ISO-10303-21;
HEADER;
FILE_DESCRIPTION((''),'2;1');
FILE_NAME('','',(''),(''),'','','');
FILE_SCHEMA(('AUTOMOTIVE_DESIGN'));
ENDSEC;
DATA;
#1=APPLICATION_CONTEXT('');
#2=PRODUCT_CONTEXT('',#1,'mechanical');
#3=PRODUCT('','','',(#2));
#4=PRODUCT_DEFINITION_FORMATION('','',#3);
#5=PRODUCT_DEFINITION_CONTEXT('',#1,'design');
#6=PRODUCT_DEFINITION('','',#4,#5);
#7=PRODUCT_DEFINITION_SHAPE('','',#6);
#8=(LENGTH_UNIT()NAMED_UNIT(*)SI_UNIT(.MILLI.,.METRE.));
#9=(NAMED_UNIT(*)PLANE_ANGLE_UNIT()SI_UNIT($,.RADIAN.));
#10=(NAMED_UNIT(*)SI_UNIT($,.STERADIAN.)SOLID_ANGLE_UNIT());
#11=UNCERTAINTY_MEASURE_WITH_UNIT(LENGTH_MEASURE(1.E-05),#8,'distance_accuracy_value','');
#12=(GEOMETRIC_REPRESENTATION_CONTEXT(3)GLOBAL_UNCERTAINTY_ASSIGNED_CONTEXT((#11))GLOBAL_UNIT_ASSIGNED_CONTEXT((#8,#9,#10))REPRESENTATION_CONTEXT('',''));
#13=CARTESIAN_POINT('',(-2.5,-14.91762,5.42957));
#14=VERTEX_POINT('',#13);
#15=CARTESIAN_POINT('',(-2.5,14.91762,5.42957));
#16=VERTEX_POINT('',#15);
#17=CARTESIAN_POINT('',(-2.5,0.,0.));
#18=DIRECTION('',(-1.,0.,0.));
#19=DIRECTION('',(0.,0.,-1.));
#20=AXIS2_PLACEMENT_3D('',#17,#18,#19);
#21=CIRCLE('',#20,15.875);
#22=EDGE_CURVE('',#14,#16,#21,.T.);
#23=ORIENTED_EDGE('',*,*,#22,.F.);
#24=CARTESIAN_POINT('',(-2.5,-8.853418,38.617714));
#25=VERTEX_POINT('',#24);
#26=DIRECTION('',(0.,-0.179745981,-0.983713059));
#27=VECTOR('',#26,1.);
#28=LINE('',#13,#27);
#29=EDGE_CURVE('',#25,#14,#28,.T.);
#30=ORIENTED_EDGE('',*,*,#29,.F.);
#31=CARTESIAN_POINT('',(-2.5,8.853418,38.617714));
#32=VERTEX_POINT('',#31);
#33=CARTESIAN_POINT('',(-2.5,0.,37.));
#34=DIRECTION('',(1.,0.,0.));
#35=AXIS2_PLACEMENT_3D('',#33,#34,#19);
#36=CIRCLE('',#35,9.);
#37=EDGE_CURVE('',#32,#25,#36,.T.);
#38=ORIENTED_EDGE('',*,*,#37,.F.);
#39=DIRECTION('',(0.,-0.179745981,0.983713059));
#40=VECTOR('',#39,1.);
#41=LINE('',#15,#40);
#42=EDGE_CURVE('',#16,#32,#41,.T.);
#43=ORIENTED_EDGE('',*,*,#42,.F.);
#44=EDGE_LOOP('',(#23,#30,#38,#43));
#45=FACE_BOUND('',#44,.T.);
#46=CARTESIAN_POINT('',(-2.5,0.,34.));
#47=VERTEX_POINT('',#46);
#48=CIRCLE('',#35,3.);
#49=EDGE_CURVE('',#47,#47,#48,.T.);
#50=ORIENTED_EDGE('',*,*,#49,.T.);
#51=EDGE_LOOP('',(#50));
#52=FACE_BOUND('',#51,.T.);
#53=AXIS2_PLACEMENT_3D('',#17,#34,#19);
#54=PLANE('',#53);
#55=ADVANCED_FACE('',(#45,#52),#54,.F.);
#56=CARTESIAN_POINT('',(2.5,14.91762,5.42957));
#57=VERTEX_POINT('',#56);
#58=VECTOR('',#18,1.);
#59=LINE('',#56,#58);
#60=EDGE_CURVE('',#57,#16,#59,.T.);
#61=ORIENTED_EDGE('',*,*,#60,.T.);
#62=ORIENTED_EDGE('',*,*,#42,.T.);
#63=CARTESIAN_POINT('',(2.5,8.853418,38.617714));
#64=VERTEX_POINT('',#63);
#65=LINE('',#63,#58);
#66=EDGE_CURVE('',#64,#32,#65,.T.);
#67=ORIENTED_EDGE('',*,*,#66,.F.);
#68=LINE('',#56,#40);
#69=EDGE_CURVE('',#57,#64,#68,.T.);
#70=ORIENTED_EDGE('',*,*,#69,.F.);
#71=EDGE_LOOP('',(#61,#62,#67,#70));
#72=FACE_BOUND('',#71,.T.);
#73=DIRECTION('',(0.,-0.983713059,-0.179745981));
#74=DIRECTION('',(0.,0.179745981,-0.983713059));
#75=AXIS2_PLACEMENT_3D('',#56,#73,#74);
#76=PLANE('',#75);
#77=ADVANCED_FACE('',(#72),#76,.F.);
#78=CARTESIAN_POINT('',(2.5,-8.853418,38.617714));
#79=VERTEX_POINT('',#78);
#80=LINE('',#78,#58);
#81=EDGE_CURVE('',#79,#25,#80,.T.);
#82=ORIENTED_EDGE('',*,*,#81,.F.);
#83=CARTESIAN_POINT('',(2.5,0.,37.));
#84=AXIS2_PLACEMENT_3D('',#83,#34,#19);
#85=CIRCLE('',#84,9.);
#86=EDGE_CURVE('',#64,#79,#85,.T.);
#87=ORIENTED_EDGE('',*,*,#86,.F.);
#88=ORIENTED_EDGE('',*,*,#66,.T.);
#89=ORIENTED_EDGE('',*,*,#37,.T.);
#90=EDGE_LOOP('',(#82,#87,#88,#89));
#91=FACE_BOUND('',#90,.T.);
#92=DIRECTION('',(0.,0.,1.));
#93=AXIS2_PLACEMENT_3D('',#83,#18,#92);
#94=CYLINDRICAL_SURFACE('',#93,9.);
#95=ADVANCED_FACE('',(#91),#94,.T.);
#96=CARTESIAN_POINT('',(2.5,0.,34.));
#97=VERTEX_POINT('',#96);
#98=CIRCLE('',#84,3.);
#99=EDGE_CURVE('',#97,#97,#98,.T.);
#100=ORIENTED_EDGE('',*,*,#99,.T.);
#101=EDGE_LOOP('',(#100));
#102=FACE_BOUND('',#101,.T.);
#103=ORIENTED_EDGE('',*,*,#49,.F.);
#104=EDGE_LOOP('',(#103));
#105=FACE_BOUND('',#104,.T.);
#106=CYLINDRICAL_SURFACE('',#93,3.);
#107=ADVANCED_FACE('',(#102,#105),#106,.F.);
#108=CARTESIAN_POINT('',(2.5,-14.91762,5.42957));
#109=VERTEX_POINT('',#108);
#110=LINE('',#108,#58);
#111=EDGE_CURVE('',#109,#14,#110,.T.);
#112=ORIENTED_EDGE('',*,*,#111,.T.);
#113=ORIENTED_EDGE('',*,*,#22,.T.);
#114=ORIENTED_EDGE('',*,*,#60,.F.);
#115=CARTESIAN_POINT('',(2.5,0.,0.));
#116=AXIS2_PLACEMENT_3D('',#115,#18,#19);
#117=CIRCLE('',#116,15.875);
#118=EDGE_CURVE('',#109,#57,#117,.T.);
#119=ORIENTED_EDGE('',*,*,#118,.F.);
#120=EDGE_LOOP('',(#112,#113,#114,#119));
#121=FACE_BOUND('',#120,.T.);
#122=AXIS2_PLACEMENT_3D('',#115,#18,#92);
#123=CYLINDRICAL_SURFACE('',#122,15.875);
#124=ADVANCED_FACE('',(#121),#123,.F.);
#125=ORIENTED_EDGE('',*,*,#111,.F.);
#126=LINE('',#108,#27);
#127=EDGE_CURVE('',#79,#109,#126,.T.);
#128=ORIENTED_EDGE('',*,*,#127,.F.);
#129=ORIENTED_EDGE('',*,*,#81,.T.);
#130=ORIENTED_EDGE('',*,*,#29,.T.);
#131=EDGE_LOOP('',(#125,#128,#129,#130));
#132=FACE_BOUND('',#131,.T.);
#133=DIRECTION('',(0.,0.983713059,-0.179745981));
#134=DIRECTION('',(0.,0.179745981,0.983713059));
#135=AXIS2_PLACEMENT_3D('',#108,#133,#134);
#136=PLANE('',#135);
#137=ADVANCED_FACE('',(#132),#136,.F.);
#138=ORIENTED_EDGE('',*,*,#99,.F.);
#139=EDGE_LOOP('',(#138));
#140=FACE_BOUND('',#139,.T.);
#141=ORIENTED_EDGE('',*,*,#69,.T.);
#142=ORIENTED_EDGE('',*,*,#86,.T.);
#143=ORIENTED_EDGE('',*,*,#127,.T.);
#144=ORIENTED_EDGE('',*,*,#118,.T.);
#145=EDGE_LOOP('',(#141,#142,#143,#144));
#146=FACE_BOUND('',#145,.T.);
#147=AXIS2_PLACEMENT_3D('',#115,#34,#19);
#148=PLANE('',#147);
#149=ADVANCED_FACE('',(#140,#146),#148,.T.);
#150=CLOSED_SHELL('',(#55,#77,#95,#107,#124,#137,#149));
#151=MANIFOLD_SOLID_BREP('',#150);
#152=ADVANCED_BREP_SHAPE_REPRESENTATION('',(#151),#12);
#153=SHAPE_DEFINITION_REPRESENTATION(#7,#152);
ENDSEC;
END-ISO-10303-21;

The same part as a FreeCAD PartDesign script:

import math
import FreeCAD as App
import Part
import Sketcher
from FreeCAD import Vector
Q = App.Units.Quantity

doc = App.newDocument("Part")
body = doc.addObject("PartDesign::Body", "Body")

sketch1 = body.newObject("Sketcher::SketchObject", "Sketch")
sketch1.AttachmentSupport = (doc.getObject("YZ_Plane"), [""])
sketch1.MapMode = "FlatFace"
sketch1.addGeometry([
    Part.LineSegment(Vector(-8.853418, 38.617714, 0), Vector(-14.91762, 5.42957, 0)),
    Part.ArcOfCircle(Part.Circle(Vector(0, 0, 0), Vector(0, 0, 1), 15.875), math.radians(20), math.radians(160)),
    Part.LineSegment(Vector(14.91762, 5.42957, 0), Vector(8.853418, 38.617714, 0)),
    Part.ArcOfCircle(Part.Circle(Vector(0, 37, 0), Vector(0, 0, 1), 9), math.radians(10.354964), math.radians(169.645036)),
    Part.Circle(Vector(0, 37, 0), Vector(0, 0, 1), 3),
], False)
sketch1.addConstraint([
    Sketcher.Constraint("Coincident", 0, 2, 1, 2),
    Sketcher.Constraint("Coincident", 1, 1, 2, 1),
    Sketcher.Constraint("Tangent", 2, 2, 3, 1),
    Sketcher.Constraint("Tangent", 3, 2, 0, 1),
    Sketcher.Constraint("Coincident", 1, 3, -1, 1),
    Sketcher.Constraint("Coincident", 4, 3, 3, 3),
    Sketcher.Constraint("Symmetric", 2, 2, 3, 2, -2),
    Sketcher.Constraint("Diameter", 4, Q("6 mm")),
    Sketcher.Constraint("Radius", 3, Q("9 mm")),
    Sketcher.Constraint("DistanceY", -1, 1, 3, 3, Q("37 mm")),
    Sketcher.Constraint("Radius", 1, Q("15.875 mm")),
    Sketcher.Constraint("DistanceX", 0, 2, -1, 1, Q("14.91762 mm")),
])
pad1 = body.newObject("PartDesign::Pad", "Pad")
pad1.Profile = sketch1
pad1.Length = 5
pad1.Midplane = True

doc.recompute()
